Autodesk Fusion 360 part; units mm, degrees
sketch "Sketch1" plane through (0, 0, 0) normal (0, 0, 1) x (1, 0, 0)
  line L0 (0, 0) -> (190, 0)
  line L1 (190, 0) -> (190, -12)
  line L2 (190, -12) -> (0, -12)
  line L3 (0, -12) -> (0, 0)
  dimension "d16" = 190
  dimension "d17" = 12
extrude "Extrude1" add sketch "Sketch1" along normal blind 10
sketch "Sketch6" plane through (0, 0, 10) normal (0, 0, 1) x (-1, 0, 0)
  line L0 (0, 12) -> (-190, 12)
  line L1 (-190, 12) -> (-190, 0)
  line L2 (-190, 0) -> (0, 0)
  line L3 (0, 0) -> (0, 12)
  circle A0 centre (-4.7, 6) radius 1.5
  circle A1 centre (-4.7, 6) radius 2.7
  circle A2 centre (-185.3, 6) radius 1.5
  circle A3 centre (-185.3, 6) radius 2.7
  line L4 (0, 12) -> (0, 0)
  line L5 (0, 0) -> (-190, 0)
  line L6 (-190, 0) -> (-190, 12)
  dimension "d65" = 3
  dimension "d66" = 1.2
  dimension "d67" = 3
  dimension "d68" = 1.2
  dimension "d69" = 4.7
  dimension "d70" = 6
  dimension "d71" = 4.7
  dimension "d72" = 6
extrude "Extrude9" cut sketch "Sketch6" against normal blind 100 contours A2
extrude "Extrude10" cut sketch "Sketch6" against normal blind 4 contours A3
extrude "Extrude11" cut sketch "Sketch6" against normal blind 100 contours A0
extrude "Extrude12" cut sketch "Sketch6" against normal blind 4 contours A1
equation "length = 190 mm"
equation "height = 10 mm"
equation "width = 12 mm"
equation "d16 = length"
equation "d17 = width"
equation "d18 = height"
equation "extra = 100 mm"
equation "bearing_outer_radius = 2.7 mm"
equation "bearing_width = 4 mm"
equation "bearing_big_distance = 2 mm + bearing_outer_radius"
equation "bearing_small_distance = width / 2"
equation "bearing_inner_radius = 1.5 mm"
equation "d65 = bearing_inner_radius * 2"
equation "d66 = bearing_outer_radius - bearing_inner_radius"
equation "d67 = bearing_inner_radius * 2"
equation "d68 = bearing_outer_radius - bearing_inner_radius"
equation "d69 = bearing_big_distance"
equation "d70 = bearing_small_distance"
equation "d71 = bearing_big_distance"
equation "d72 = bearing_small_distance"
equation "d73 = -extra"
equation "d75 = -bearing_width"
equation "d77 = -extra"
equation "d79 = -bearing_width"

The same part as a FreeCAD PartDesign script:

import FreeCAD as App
import Part
import Sketcher

doc = App.newDocument("Part")
body = doc.addObject("PartDesign::Body", "Body")

sketch1 = body.newObject("Sketcher::SketchObject", "Sketch")
sketch1.AttachmentSupport = (doc.getObject("XY_Plane"), [""])
sketch1.MapMode = "FlatFace"
sketch1.addGeometry([
    Part.LineSegment(App.Vector(190, 0, 0), App.Vector(0, 0, 0)),
    Part.LineSegment(App.Vector(0, 0, 0), App.Vector(0, -12, 0)),
    Part.LineSegment(App.Vector(0, -12, 0), App.Vector(190, -12, 0)),
    Part.LineSegment(App.Vector(190, -12, 0), App.Vector(190, 0, 0)),
], False)
sketch1.addConstraint([
    Sketcher.Constraint("Coincident", 0, 2, 1, 1),
    Sketcher.Constraint("Coincident", 1, 2, 2, 1),
    Sketcher.Constraint("Coincident", 2, 2, 3, 1),
    Sketcher.Constraint("Coincident", 3, 2, 0, 1),
    Sketcher.Constraint("Horizontal", 0),
    Sketcher.Constraint("Vertical", 1),
    Sketcher.Constraint("Horizontal", 2),
    Sketcher.Constraint("Vertical", 3),
    Sketcher.Constraint("Coincident", 0, 2, -1, 1),
    Sketcher.Constraint("DistanceX", 0, 2, 0, 1, 190.0),
    Sketcher.Constraint("DistanceY", 1, 2, 1, 1, 12.0),
])
pad1 = body.newObject("PartDesign::Pad", "Pad")
pad1.Profile = sketch1
pad1.Length = 10

sketch2 = body.newObject("Sketcher::SketchObject", "Sketch001")
sketch2.AttachmentSupport = (doc.getObject("XY_Plane"), [""])
sketch2.MapMode = "FlatFace"
sketch2.AttachmentOffset = App.Placement(App.Vector(0, 0, 10), App.Rotation())
sketch2.addGeometry(Part.Circle(App.Vector(185.3, -6, 0), App.Vector(0, 0, 1), 1.5), False)
sketch2.addConstraint([
    Sketcher.Constraint("Diameter", 0, 3.0),
    Sketcher.Constraint("DistanceY", 0, 3, -1, 1, 6.0),
    Sketcher.Constraint("DistanceX", -1, 1, 0, 3, 185.3),
])
pocket1 = body.newObject("PartDesign::Pocket", "Pocket")
pocket1.Profile = sketch2
pocket1.Length = 100

sketch3 = body.newObject("Sketcher::SketchObject", "Sketch002")
sketch3.AttachmentSupport = (doc.getObject("XY_Plane"), [""])
sketch3.MapMode = "FlatFace"
sketch3.AttachmentOffset = App.Placement(App.Vector(0, 0, 10), App.Rotation())
sketch3.addGeometry([
    Part.Circle(App.Vector(185.3, -6, 0), App.Vector(0, 0, 1), 2.7),
    Part.Circle(App.Vector(185.3, -6, 0), App.Vector(0, 0, 1), 1.5),
], False)
sketch3.addConstraint([
    Sketcher.Constraint("Coincident", 1, 3, 0, 3),
    Sketcher.Constraint("Diameter", 1, 3.0),
    Sketcher.Constraint("DistanceY", 0, 3, -1, 1, 6.0),
    Sketcher.Constraint("Diameter", 0, 5.4),
    Sketcher.Constraint("DistanceX", -1, 1, 0, 3, 185.3),
])
pocket2 = body.newObject("PartDesign::Pocket", "Pocket001")
pocket2.Profile = sketch3
pocket2.Length = 4

sketch4 = body.newObject("Sketcher::SketchObject", "Sketch003")
sketch4.AttachmentSupport = (doc.getObject("XY_Plane"), [""])
sketch4.MapMode = "FlatFace"
sketch4.AttachmentOffset = App.Placement(App.Vector(0, 0, 10), App.Rotation())
sketch4.addGeometry(Part.Circle(App.Vector(4.7, -6, 0), App.Vector(0, 0, 1), 1.5), False)
sketch4.addConstraint([
    Sketcher.Constraint("Diameter", 0, 3.0),
    Sketcher.Constraint("DistanceY", 0, 3, -1, 1, 6.0),
    Sketcher.Constraint("DistanceX", -1, 1, 0, 3, 4.7),
])
pocket3 = body.newObject("PartDesign::Pocket", "Pocket002")
pocket3.Profile = sketch4
pocket3.Length = 100

sketch5 = body.newObject("Sketcher::SketchObject", "Sketch004")
sketch5.AttachmentSupport = (doc.getObject("XY_Plane"), [""])
sketch5.MapMode = "FlatFace"
sketch5.AttachmentOffset = App.Placement(App.Vector(0, 0, 10), App.Rotation())
sketch5.addGeometry([
    Part.Circle(App.Vector(4.7, -6, 0), App.Vector(0, 0, 1), 2.7),
    Part.Circle(App.Vector(4.7, -6, 0), App.Vector(0, 0, 1), 1.5),
], False)
sketch5.addConstraint([
    Sketcher.Constraint("Coincident", 1, 3, 0, 3),
    Sketcher.Constraint("Diameter", 1, 3.0),
    Sketcher.Constraint("DistanceY", 0, 3, -1, 1, 6.0),
    Sketcher.Constraint("Diameter", 0, 5.4),
    Sketcher.Constraint("DistanceX", -1, 1, 0, 3, 4.7),
])
pocket4 = body.newObject("PartDesign::Pocket", "Pocket003")
pocket4.Profile = sketch5
pocket4.Length = 4

doc.recompute()
